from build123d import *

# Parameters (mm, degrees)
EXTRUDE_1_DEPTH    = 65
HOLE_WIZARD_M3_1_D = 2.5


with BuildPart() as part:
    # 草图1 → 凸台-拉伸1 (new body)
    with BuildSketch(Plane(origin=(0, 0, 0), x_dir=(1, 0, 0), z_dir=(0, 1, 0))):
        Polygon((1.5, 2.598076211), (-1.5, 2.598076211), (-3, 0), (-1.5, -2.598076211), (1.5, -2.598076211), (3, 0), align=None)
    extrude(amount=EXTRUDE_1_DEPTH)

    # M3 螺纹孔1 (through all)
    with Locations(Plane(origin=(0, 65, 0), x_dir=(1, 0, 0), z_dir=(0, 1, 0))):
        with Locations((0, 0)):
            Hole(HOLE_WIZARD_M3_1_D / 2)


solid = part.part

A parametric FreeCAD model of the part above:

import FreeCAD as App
import Part
import Sketcher
from FreeCAD import Vector
Q = App.Units.Quantity


def add_polygon(sketch, points):
    """Adds a closed chain of lines whose ends are joined by coincident constraints."""
    first, n = sketch.GeometryCount, len(points)
    for a, b in zip(points, points[1:] + points[:1]):
        sketch.addGeometry(Part.LineSegment(App.Vector(*a, 0), App.Vector(*b, 0)), False)
    for i in range(n):
        sketch.addConstraint(Sketcher.Constraint("Coincident", first + i, 2, first + (i + 1) % n, 1))

doc = App.newDocument("Part")
params = doc.addObject("Spreadsheet::Sheet", "Params")
for row, (alias, value) in enumerate([
    ("sketch1_width", "3 mm"),
    ("sketch1_length", "3 mm"),
    ("pad1_length", "65 mm"),
    ("sketch2_diameter", "2.5 mm"),
    ("hole_diameter", "2.5 mm"),
], start=1):
    params.set(f"A{row}", alias)
    params.set(f"B{row}", "=" + value)
    params.setAlias(f"B{row}", alias)

body = doc.addObject("PartDesign::Body", "Body")

# Sketch on XZ plane
sketch1 = doc.addObject("Sketcher::SketchObject", "Sketch")
body.addObject(sketch1)
sketch1.AttachmentSupport = (doc.XZ_Plane, [""])
sketch1.MapMode = "FlatFace"
add_polygon(sketch1, [(1.5, -2.6), (-1.5, -2.6), (-3, 0), (-1.5, 2.6), (1.5, 2.6), (3, 0)])  # lines 0-5
sketch1.addConstraint(Sketcher.Constraint("Horizontal", 0))
sketch1.addConstraint(Sketcher.Constraint("Horizontal", 3))
sketch1.addConstraint(Sketcher.Constraint("Symmetric", 0, 2, 3, 2, -1, 1))
sketch1.addConstraint(Sketcher.Constraint("Symmetric", 1, 2, 4, 2, -1, 1))
sketch1.addConstraint(Sketcher.Constraint("PointOnObject", 1, 2, -1))
sketch1.addConstraint(Sketcher.Constraint("Parallel", 2, 5))
sketch1.addConstraint(Sketcher.Constraint("Vertical", 0, 2, 2, 2))
sketch1.addConstraint(Sketcher.Constraint("DistanceX", 0, 2, 0, 1, Q("3 mm")))
sketch1.addConstraint(Sketcher.Constraint("Angle", 1, Q("120 deg")))
sketch1.addConstraint(Sketcher.Constraint("Distance", 1, Q("3 mm")))
sketch1.setExpression("Constraints[13]", "Params.sketch1_width")
sketch1.setExpression("Constraints[15]", "Params.sketch1_length")
pad1 = doc.addObject("PartDesign::Pad", "Pad")
body.addObject(pad1)
pad1.Profile = sketch1
pad1.setExpression("Length", "Params.pad1_length")
pad1.Reversed = True

# Sketch on XZ plane
sketch2 = doc.addObject("Sketcher::SketchObject", "Sketch001")
body.addObject(sketch2)
sketch2.AttachmentSupport = (doc.XZ_Plane, [""])
sketch2.MapMode = "FlatFace"
sketch2.AttachmentOffset = App.Placement(Vector(0, 0, -65), App.Rotation())
sketch2.addGeometry(Part.Circle(Vector(0, 0, 0), Vector(0, 0, 1), 1.2), False)
sketch2.addConstraint(Sketcher.Constraint("Coincident", 0, 3, -1, 1))
sketch2.addConstraint(Sketcher.Constraint("Diameter", 0, Q("2.5 mm")))
sketch2.setExpression("Constraints[1]", "Params.sketch2_diameter")
doc.recompute()
hole = doc.addObject("PartDesign::Hole", "Hole")
body.addObject(hole)
hole.Profile = sketch2
hole.ThreadType = "None"
hole.setExpression("Diameter", "Params.hole_diameter")
hole.DepthType = "ThroughAll"
hole.Reversed = True

doc.recompute()
